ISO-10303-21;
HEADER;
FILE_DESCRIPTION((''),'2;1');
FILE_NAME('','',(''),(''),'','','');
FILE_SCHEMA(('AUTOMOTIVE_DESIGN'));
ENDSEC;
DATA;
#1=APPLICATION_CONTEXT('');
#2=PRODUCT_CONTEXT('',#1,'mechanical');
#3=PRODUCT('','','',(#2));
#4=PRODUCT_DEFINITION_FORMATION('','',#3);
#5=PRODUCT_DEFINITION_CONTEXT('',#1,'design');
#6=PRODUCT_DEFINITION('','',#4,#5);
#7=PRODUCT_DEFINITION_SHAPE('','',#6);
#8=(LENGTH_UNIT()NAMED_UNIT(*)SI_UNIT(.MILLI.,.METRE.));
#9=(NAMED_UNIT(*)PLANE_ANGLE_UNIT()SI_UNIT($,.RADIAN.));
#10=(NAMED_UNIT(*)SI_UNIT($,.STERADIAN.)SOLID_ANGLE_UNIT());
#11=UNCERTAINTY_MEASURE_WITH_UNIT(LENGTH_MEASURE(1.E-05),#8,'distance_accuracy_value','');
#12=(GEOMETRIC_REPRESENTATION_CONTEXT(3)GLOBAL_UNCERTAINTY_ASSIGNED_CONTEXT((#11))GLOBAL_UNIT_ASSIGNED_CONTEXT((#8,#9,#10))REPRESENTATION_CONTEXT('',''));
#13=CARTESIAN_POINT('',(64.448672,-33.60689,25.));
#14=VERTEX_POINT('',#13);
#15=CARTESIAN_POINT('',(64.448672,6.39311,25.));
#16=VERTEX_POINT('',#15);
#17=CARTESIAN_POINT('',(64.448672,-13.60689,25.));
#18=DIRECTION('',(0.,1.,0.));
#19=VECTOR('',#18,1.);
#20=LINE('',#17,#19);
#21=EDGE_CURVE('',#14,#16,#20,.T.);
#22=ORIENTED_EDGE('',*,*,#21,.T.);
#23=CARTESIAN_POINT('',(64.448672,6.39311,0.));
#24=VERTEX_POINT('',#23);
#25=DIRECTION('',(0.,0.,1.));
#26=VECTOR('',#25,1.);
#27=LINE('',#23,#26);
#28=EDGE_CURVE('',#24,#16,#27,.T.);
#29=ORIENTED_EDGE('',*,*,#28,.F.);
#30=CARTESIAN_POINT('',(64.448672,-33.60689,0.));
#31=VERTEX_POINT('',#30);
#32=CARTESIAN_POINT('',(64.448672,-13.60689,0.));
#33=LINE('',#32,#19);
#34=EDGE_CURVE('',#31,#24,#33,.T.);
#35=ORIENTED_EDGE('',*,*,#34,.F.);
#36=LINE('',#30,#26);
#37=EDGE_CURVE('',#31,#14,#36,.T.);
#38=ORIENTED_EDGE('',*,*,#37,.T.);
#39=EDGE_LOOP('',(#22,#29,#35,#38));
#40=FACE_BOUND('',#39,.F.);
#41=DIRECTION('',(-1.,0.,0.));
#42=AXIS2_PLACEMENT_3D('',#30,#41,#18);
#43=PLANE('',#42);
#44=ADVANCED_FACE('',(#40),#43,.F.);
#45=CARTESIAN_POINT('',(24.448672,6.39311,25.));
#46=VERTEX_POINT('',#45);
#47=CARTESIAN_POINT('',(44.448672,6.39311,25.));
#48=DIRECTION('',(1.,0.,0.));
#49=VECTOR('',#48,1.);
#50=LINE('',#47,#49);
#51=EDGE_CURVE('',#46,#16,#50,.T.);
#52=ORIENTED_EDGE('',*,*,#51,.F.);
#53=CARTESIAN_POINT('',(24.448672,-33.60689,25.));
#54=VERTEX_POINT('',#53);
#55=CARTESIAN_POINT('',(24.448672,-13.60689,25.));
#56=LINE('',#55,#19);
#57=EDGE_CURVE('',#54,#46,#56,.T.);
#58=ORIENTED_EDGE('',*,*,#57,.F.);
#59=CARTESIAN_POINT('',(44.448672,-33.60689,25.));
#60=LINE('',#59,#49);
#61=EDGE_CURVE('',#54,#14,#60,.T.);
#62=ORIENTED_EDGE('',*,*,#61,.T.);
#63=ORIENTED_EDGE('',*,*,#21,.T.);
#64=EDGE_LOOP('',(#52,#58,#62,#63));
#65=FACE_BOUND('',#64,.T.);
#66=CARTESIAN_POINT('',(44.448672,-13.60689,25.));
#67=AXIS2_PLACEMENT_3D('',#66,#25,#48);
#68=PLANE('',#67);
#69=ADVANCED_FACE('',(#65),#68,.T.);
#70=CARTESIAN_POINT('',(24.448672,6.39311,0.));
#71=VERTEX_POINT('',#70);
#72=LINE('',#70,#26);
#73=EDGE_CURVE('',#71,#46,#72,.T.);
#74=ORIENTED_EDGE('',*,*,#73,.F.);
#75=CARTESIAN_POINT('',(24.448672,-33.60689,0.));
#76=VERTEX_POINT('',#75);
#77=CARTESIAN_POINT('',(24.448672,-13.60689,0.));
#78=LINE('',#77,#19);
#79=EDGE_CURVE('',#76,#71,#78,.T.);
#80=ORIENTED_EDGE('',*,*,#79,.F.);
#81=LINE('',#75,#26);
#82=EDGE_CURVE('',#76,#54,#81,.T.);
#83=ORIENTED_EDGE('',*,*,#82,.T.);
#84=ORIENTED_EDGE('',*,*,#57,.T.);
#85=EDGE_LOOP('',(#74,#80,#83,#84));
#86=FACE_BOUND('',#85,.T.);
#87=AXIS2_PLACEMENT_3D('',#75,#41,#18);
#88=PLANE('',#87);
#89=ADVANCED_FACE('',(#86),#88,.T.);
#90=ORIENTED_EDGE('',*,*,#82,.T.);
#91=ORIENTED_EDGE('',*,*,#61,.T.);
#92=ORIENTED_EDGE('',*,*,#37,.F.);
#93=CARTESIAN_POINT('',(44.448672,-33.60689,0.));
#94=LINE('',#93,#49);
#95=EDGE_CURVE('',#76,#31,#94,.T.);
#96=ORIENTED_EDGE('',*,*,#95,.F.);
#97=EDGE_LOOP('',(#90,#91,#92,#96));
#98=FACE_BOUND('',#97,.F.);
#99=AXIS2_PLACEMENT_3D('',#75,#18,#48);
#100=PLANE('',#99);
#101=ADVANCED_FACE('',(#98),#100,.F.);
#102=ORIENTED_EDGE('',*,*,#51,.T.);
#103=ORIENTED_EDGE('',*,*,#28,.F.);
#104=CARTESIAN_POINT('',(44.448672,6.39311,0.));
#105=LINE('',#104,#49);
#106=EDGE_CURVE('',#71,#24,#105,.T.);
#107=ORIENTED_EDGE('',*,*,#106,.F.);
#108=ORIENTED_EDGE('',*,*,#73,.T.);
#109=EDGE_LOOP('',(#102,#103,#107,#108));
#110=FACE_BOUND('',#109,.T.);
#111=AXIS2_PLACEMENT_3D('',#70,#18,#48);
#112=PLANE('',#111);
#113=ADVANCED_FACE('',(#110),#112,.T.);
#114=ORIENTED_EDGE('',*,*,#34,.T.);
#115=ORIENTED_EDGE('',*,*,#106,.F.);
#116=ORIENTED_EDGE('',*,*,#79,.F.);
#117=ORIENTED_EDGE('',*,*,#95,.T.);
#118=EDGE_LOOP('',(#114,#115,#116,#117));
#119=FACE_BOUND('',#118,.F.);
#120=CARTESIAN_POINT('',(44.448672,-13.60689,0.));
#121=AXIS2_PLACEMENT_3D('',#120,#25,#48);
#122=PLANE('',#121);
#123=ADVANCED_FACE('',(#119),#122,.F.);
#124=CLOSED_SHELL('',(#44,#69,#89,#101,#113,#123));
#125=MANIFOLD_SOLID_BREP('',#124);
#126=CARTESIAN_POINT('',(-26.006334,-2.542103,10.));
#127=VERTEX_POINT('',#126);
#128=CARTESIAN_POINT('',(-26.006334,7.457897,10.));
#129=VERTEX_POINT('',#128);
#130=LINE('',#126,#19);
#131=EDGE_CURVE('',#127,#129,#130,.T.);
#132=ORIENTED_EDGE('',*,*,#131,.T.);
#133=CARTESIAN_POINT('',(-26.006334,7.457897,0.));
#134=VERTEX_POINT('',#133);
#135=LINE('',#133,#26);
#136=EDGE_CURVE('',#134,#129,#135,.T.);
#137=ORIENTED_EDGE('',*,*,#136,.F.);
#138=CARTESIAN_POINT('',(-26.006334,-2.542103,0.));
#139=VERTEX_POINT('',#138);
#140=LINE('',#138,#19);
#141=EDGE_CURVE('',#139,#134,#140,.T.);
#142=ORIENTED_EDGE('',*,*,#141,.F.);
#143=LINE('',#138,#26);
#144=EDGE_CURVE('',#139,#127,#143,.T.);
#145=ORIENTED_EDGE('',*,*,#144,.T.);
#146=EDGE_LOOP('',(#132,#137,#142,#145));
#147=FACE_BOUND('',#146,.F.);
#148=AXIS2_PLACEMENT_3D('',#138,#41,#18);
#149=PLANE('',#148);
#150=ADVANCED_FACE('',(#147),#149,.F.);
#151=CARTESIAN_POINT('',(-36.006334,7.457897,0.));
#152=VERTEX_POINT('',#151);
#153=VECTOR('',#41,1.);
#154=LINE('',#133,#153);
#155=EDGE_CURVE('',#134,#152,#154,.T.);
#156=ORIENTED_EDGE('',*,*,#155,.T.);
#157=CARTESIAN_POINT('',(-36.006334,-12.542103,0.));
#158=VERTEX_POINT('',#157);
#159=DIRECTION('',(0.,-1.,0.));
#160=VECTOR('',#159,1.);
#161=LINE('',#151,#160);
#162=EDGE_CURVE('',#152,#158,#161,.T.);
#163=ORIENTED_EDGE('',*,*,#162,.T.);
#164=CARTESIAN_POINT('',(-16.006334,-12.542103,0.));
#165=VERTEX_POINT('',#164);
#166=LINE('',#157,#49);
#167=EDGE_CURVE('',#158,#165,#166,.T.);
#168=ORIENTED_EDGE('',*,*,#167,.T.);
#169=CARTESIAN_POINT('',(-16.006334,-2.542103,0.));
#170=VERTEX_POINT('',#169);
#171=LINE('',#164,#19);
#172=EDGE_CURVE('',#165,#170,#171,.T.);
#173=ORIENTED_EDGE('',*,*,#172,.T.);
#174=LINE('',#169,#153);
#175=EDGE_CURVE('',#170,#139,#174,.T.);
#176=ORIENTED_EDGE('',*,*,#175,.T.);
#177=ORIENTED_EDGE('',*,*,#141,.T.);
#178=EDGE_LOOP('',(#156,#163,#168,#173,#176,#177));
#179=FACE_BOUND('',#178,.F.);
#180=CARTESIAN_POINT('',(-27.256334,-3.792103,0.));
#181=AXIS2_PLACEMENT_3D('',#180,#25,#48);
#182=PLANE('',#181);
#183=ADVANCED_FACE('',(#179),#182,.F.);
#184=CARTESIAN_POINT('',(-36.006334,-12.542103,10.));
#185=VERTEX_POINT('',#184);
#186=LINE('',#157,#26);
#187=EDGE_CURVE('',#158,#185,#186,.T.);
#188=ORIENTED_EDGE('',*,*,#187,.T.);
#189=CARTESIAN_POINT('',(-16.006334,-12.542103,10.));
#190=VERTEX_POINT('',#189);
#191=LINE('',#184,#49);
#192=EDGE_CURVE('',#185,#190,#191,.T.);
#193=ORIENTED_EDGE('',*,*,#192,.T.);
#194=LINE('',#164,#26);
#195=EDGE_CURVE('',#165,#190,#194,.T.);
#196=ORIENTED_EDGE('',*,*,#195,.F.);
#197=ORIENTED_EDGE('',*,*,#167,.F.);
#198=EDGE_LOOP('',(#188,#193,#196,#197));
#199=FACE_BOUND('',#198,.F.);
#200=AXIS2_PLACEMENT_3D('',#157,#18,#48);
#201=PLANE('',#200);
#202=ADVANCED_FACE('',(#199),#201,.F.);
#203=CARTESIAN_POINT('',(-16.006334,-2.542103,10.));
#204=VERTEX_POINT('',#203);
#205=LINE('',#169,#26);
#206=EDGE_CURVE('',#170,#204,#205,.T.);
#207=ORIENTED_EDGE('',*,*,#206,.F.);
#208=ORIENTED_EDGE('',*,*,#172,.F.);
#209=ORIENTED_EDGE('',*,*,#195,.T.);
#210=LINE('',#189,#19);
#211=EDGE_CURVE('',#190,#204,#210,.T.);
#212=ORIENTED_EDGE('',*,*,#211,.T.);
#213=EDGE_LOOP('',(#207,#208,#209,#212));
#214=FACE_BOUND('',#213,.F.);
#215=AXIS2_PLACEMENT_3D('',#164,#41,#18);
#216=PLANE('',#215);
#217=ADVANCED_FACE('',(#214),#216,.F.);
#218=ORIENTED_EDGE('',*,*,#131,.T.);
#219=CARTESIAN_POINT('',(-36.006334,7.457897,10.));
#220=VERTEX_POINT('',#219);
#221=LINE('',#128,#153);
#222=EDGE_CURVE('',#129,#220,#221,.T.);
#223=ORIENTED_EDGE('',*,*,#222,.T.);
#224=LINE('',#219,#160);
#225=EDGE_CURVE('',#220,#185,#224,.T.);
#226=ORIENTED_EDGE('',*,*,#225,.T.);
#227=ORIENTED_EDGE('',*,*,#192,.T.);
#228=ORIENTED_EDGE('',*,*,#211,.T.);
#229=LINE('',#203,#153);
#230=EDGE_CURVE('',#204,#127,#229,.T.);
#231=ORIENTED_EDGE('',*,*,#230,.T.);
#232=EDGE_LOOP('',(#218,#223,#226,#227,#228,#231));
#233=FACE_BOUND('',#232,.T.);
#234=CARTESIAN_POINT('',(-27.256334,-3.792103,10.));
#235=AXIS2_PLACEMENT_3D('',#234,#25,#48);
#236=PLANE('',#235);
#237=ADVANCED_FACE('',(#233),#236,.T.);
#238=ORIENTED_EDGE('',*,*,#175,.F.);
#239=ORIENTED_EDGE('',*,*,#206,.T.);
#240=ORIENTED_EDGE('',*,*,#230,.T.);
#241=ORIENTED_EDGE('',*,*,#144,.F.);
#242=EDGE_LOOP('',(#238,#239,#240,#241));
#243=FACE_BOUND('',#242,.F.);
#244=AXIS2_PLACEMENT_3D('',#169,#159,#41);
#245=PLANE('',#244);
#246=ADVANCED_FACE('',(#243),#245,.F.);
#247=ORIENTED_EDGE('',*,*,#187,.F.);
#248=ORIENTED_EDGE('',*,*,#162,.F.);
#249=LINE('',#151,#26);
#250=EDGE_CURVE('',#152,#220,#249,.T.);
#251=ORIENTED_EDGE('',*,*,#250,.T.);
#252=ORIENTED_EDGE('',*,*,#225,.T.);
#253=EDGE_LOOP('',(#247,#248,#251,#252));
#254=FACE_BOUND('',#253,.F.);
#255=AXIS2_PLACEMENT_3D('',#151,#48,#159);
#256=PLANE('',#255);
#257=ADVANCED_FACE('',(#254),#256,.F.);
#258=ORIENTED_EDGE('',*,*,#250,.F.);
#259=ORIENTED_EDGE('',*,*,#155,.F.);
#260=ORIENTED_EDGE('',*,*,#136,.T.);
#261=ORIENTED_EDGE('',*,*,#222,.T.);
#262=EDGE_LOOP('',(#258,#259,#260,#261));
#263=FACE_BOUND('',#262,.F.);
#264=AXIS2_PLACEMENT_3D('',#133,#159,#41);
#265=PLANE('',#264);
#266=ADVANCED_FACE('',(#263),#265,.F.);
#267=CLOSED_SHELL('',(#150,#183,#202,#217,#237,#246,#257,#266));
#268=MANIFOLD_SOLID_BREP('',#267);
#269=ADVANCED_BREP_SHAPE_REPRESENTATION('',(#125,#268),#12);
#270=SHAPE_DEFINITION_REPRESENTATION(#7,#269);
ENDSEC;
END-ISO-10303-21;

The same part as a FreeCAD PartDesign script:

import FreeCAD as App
import Part
import Sketcher

V = App.Vector
Q = App.Units.Quantity


def add_polygon(sketch, points):
    """Adds a closed chain of lines whose ends are joined by coincident constraints."""
    first, n = sketch.GeometryCount, len(points)
    for a, b in zip(points, points[1:] + points[:1]):
        sketch.addGeometry(Part.LineSegment(App.Vector(*a, 0), App.Vector(*b, 0)), False)
    for i in range(n):
        sketch.addConstraint(Sketcher.Constraint("Coincident", first + i, 2, first + (i + 1) % n, 1))

doc = App.newDocument("Part")
params = doc.addObject("Spreadsheet::Sheet", "Params")
for row, (alias, value) in enumerate([
    ("sketch1_width", "10 mm"),
    ("pad1_length", "10 mm"),
    ("sketch2_width", "40 mm"),
    ("pad2_length", "25 mm"),
], start=1):
    params.set(f"A{row}", alias)
    params.set(f"B{row}", "=" + value)
    params.setAlias(f"B{row}", alias)

body = doc.addObject("PartDesign::Body", "Body")

# Sketch on XY plane
sketch1 = body.newObject("Sketcher::SketchObject", "Sketch")
sketch1.AttachmentSupport = (doc.getObject("XY_Plane"), [""])
sketch1.MapMode = "FlatFace"
add_polygon(sketch1, [(-26, 7), (-36, 7), (-36, -13), (-16, -13), (-16, -3), (-26, -3)])  # lines 0-5
sketch1.addConstraint([
    Sketcher.Constraint("Horizontal", 0),
    Sketcher.Constraint("Vertical", 1),
    Sketcher.Constraint("Horizontal", 2),
    Sketcher.Constraint("Vertical", 3),
    Sketcher.Constraint("Horizontal", 4),
    Sketcher.Constraint("Vertical", 5),
    Sketcher.Constraint("Equal", 0, 4),
    Sketcher.Constraint("Equal", 2, 1),
    Sketcher.Constraint("Equal", 4, 3),
    Sketcher.Constraint("DistanceX", 0, 2, 0, 1, Q("10 mm")),
    Sketcher.Constraint("DistanceX", 0, 2, -1, 1, Q("36.006334 mm")),
    Sketcher.Constraint("DistanceY", -1, 1, 0, 2, Q("7.457897 mm")),
])
sketch1.setExpression("Constraints[15]", "Params.sketch1_width")
pad1 = body.newObject("PartDesign::Pad", "Pad")
pad1.Profile = sketch1
pad1.setExpression("Length", "Params.pad1_length")
body2 = doc.addObject("PartDesign::Body", "Body001")

# Sketch on XY plane
sketch2 = body2.newObject("Sketcher::SketchObject", "Sketch001")
sketch2.AttachmentSupport = (doc.getObject("XY_Plane001"), [""])
sketch2.MapMode = "FlatFace"
add_polygon(sketch2, [(24, 6), (24, -34), (64, -34), (64, 6)])  # lines 0-3
sketch2.addConstraint([
    Sketcher.Constraint("Vertical", 0),
    Sketcher.Constraint("Horizontal", 1),
    Sketcher.Constraint("Vertical", 2),
    Sketcher.Constraint("Horizontal", 3),
    Sketcher.Constraint("Equal", 3, 0),
    Sketcher.Constraint("DistanceX", 1, 1, 1, 2, Q("40 mm")),
    Sketcher.Constraint("DistanceX", -1, 1, 0, 2, Q("24.448672 mm")),
    Sketcher.Constraint("DistanceY", 0, 2, -1, 1, Q("33.60689 mm")),
])
sketch2.setExpression("Constraints[9]", "Params.sketch2_width")
pad2 = body2.newObject("PartDesign::Pad", "Pad001")
pad2.Profile = sketch2
pad2.setExpression("Length", "Params.pad2_length")

doc.recompute()
